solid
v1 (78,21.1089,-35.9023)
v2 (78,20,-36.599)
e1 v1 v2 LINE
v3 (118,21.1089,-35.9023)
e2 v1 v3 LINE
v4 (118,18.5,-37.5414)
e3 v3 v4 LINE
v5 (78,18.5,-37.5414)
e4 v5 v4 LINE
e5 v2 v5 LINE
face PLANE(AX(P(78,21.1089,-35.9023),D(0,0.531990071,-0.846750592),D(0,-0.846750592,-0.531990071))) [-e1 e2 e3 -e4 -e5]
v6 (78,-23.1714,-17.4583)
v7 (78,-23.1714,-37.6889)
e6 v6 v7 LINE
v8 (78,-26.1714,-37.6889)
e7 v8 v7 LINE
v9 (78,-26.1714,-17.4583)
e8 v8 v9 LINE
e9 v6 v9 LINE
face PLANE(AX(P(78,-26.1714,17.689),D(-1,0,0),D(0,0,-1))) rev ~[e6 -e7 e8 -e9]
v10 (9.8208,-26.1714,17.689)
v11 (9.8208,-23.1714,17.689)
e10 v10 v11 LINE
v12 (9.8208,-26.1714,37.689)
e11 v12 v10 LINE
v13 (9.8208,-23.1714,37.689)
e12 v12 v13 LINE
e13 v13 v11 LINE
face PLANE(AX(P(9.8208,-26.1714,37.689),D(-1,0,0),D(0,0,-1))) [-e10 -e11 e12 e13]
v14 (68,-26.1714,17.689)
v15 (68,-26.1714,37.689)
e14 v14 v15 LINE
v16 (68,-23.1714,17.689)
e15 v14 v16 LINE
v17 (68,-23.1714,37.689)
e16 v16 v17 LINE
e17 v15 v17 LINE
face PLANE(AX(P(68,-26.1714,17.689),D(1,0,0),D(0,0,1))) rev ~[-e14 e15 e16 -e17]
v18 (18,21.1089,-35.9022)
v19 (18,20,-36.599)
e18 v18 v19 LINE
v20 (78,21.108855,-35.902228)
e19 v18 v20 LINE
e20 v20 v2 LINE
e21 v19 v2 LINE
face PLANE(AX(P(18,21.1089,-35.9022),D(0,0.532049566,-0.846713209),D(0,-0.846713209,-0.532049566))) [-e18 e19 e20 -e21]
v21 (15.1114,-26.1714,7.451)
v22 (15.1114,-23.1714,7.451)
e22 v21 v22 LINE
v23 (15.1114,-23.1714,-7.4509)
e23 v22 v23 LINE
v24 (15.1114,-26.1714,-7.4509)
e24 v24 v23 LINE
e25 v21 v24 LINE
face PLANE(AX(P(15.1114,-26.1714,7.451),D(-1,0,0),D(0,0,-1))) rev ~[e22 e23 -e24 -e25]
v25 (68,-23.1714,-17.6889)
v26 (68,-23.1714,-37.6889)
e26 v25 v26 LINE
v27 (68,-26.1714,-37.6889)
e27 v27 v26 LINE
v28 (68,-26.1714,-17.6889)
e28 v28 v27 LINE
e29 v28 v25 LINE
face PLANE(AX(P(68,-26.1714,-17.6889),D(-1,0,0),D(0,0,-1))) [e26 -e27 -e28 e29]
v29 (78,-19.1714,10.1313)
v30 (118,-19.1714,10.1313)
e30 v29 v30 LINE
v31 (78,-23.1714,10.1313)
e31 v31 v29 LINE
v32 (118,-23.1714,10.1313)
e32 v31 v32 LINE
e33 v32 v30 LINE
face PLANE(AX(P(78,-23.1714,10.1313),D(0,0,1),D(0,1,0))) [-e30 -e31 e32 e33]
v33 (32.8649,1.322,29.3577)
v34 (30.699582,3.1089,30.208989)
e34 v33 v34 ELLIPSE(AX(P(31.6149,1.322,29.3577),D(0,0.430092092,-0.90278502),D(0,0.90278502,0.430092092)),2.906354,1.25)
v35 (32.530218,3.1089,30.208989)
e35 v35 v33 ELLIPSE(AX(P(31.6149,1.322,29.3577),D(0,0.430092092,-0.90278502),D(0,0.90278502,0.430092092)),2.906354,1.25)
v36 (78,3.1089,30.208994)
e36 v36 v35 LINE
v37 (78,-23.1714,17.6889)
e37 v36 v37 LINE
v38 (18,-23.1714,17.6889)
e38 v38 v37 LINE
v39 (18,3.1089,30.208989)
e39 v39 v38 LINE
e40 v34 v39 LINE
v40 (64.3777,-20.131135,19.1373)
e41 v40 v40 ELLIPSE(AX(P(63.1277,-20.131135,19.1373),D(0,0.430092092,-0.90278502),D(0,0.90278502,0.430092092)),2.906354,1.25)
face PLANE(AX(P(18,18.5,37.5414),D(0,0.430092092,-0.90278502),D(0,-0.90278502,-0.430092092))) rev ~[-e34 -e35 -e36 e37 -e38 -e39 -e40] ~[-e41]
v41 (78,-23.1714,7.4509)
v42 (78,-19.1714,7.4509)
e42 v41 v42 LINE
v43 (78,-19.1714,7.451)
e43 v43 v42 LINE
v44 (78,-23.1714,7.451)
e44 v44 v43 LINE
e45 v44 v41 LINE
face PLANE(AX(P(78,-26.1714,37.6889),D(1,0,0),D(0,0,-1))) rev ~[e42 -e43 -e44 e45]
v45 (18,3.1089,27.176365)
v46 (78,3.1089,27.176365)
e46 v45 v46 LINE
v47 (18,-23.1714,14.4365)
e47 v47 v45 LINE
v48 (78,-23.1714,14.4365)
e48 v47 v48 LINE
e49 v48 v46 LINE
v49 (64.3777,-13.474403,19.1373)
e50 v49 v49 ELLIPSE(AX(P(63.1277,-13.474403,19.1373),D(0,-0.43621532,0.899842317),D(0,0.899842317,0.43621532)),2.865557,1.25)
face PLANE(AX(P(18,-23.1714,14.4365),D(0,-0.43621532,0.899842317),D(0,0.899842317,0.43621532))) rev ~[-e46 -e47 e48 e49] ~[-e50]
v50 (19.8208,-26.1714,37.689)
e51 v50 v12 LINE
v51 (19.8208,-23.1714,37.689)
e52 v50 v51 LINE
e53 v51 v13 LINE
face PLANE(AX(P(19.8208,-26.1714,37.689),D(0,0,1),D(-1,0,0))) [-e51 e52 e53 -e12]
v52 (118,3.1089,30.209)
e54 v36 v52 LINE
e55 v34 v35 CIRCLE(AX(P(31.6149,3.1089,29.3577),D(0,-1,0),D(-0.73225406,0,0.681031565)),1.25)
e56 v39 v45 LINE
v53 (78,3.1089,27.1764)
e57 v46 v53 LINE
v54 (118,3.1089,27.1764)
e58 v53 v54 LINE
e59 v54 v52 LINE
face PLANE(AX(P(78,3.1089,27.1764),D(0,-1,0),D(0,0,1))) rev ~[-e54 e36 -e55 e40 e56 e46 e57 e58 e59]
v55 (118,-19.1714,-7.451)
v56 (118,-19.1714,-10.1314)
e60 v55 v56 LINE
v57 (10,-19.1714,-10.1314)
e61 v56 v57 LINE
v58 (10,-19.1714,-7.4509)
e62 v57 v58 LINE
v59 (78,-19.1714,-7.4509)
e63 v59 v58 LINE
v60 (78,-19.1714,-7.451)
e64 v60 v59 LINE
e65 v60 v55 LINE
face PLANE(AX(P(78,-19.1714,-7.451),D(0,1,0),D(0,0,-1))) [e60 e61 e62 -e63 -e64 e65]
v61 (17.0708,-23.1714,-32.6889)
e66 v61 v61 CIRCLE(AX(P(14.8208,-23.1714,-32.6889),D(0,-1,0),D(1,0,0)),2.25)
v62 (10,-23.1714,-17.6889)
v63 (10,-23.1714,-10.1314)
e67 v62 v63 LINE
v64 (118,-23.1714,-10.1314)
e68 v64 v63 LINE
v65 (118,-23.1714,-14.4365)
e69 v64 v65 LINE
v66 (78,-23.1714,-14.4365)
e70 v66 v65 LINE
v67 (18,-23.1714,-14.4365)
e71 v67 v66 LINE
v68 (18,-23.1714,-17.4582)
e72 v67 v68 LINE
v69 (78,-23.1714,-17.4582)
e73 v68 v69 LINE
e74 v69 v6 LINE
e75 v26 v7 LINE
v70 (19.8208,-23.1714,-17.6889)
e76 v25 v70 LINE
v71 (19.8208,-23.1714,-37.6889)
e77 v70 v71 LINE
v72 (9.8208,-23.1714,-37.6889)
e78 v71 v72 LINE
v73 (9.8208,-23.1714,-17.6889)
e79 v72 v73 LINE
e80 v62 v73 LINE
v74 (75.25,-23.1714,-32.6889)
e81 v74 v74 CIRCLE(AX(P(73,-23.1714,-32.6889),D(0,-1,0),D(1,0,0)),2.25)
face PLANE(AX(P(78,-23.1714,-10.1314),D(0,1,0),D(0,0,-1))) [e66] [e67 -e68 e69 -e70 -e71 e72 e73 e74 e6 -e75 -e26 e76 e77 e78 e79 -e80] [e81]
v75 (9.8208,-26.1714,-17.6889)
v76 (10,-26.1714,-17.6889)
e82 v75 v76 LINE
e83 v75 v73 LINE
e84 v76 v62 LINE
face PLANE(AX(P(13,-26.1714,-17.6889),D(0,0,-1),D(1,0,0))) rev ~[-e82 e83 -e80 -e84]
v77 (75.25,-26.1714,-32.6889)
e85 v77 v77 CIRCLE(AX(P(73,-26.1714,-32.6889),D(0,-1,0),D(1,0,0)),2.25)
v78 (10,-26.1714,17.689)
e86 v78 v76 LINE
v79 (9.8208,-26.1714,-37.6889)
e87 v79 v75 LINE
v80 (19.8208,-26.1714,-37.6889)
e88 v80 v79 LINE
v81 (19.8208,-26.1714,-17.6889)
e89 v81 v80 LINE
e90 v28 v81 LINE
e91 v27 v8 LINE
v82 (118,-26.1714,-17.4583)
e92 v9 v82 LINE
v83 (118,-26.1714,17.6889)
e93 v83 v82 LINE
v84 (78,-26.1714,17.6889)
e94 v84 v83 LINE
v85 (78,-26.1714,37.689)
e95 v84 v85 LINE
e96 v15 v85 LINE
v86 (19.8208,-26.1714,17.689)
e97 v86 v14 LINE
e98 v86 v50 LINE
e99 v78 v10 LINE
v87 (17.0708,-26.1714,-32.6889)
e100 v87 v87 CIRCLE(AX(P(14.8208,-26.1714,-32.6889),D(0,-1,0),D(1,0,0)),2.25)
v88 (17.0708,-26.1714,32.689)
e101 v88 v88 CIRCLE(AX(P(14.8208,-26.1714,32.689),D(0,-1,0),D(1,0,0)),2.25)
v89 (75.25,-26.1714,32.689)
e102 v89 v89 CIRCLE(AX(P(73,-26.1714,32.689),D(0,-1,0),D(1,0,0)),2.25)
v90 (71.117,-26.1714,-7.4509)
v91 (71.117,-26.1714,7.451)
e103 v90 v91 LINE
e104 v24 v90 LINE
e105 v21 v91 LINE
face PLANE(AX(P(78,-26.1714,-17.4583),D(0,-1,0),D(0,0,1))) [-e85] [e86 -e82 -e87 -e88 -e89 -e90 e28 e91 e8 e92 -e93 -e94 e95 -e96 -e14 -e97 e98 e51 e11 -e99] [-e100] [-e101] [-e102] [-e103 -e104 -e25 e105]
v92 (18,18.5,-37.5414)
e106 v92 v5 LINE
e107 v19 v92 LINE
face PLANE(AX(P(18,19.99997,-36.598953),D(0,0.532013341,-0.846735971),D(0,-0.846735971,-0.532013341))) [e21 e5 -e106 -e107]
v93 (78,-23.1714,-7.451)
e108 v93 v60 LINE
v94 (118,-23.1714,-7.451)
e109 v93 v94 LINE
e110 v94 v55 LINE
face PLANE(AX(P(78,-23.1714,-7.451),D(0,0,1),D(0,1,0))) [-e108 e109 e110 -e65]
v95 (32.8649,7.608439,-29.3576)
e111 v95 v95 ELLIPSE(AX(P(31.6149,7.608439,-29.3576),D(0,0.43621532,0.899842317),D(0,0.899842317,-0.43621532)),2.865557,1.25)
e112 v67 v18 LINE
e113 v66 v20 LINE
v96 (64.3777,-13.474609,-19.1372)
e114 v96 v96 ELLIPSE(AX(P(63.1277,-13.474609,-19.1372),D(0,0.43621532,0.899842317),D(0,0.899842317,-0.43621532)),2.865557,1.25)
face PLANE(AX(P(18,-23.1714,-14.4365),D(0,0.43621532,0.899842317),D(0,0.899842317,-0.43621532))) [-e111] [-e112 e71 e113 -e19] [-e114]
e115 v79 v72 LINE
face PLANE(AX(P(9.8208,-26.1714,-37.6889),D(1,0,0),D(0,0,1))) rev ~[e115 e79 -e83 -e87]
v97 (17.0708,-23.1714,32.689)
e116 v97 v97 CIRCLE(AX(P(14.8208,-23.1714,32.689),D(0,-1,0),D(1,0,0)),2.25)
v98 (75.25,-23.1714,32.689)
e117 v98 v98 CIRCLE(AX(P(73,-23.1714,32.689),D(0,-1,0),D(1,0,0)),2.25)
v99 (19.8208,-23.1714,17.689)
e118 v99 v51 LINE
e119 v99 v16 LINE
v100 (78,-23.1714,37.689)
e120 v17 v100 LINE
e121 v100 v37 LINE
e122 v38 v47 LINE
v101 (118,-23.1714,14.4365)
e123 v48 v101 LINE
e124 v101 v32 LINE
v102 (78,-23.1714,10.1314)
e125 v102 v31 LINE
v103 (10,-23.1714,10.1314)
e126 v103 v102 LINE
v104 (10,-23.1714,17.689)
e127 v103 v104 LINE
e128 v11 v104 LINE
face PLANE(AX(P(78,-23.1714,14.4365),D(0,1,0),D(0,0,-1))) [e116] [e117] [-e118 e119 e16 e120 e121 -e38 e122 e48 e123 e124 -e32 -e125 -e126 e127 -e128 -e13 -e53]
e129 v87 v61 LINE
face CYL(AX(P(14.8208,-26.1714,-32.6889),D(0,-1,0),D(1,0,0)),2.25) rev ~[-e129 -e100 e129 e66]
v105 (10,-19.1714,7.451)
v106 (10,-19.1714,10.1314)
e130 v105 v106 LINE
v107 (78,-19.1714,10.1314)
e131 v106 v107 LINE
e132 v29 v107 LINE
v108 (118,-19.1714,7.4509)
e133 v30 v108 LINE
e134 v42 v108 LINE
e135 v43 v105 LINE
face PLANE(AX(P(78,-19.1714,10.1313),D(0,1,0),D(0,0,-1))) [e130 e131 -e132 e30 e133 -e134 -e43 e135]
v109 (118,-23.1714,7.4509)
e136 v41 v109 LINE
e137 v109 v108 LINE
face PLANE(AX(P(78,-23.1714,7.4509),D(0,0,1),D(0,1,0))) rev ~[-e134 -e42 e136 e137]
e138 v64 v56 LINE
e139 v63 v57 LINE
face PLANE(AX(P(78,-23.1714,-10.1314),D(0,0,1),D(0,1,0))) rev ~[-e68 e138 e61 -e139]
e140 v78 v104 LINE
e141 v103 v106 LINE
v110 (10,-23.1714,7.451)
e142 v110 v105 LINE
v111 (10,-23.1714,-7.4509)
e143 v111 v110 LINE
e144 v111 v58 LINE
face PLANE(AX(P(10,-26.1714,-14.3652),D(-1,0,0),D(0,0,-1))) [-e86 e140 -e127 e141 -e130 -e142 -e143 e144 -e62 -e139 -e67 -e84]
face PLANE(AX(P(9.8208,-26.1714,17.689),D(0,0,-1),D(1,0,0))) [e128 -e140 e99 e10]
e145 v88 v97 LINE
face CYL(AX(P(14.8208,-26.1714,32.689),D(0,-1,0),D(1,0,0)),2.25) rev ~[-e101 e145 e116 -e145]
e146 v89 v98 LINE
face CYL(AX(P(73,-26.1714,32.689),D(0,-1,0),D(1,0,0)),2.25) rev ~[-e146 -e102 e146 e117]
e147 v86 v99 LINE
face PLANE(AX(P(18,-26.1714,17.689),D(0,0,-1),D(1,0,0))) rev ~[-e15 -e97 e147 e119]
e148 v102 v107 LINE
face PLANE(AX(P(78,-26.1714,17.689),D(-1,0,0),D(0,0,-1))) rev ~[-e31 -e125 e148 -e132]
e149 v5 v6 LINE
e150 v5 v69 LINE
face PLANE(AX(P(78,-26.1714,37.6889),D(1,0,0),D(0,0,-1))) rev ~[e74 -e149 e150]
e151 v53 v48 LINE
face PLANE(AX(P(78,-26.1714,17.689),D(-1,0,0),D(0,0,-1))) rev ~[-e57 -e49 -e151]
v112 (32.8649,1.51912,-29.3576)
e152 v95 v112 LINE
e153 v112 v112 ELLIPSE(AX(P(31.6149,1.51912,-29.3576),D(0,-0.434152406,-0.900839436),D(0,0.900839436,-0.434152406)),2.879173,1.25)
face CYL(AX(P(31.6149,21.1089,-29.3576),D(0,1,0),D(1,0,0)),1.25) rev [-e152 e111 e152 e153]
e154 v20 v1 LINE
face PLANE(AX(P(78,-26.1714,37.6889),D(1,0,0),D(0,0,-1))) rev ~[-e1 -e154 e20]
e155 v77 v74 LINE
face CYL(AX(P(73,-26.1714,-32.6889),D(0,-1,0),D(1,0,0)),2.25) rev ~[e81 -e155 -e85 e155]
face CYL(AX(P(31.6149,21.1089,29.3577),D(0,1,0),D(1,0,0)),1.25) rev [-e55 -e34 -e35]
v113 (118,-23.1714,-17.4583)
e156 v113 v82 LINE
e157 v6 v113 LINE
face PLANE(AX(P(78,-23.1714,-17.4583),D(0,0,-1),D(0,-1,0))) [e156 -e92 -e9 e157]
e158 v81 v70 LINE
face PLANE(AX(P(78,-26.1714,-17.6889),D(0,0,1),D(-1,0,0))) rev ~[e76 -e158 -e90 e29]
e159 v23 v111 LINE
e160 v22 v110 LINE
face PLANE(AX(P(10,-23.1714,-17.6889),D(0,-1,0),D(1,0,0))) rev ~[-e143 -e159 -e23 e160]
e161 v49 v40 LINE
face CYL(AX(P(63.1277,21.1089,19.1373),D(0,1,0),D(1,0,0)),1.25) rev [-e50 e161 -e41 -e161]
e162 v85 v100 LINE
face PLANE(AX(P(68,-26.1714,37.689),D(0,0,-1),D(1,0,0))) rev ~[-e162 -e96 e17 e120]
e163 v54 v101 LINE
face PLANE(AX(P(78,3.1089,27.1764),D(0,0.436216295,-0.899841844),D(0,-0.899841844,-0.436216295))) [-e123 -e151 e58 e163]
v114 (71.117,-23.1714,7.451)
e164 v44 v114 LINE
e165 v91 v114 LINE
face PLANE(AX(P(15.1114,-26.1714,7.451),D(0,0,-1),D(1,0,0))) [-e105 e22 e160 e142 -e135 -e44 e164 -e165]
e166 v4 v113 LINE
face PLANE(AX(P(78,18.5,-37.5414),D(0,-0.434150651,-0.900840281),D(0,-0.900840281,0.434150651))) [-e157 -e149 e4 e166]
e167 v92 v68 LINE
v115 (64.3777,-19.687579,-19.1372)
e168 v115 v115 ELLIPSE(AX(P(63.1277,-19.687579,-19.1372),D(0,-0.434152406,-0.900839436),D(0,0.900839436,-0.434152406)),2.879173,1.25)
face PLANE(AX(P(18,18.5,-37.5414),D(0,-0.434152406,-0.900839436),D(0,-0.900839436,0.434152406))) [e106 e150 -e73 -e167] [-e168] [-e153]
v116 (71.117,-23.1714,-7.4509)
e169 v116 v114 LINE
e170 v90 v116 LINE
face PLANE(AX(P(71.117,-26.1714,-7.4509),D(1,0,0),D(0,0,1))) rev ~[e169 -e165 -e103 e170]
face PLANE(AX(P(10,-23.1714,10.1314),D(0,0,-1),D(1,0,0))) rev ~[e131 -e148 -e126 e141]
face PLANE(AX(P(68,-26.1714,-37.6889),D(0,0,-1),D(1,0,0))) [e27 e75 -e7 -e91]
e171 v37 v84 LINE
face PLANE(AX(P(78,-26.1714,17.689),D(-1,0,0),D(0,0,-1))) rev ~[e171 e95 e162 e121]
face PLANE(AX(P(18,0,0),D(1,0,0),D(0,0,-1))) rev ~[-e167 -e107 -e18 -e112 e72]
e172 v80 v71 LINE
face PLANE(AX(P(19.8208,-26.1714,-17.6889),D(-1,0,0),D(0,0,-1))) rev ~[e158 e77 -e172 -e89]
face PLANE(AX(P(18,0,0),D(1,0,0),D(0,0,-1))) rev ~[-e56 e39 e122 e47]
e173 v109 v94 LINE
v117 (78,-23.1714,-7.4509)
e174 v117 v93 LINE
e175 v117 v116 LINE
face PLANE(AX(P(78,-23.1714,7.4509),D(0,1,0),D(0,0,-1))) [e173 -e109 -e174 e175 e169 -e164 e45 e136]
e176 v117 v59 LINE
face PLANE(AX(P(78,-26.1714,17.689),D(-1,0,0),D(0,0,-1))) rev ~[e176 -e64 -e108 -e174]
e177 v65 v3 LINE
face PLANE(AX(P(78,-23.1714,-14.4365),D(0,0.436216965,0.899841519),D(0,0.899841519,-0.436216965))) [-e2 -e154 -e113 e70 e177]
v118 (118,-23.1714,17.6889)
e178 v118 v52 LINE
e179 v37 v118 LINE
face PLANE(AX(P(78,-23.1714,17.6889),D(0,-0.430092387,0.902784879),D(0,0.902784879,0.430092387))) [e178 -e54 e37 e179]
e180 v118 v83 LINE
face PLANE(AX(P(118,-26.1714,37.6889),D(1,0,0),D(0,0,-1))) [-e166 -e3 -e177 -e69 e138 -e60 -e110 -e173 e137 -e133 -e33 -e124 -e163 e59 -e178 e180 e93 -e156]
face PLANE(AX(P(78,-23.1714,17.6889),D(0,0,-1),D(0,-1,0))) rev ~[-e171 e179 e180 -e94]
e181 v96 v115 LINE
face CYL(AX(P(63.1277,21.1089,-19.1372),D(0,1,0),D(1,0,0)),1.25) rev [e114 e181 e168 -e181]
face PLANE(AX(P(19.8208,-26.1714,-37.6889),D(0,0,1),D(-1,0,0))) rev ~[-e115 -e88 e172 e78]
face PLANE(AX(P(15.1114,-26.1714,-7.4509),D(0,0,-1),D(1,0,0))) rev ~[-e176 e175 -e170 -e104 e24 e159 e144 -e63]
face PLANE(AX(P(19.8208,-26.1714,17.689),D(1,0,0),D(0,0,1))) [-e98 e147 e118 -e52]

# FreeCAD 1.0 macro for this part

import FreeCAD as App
import Part
import Sketcher
from FreeCAD import Vector
Q = App.Units.Quantity

doc = App.newDocument("Part")
params = doc.addObject("Spreadsheet::Sheet", "Params")
for row, (alias, value) in enumerate([
    ("sketch1_width", "68 mm"),
    ("pad1_length", "3 mm"),
    ("sketch2_diameter", "4.5 mm"),
    ("sketch2_width", "10 mm"),
    ("sketch2_height", "20 mm"),
    ("pad2_length", "3 mm"),
    ("sketch3_width", "68 mm"),
    ("pad3_length", "4 mm"),
    ("pocket1_length", "4 mm"),
    ("pad4_length", "60 mm"),
    ("sketch6_diameter", "2.5 mm"),
    ("pocket2_length", "44.2803 mm"),
    ("pocket3_length", "18 mm"),
    ("sketch8_width", "3 mm"),
    ("sketch8_width2", "4 mm"),
    ("pad5_length", "40 mm"),
], start=1):
    params.set(f"A{row}", alias)
    params.set(f"B{row}", "=" + value)
    params.setAlias(f"B{row}", alias)

body = doc.addObject("PartDesign::Body", "Body")

sketch1 = doc.addObject("Sketcher::SketchObject", "Sketch")
body.addObject(sketch1)
sketch1.AttachmentSupport = (doc.XZ_Plane, [""])
sketch1.MapMode = "FlatFace"
sketch1.AttachmentOffset = App.Placement(Vector(0, 0, 26.1714), App.Rotation())
sketch1.addGeometry([
    Part.LineSegment(Vector(78, 18, 0), Vector(10, 18, 0)),
    Part.LineSegment(Vector(10, 18, 0), Vector(10, -18, 0)),
    Part.LineSegment(Vector(10, -18, 0), Vector(78, -18, 0)),
    Part.LineSegment(Vector(78, -18, 0), Vector(78, 18, 0)),
], False)
sketch1.addConstraint([
    Sketcher.Constraint("Coincident", 0, 2, 1, 1),
    Sketcher.Constraint("Coincident", 1, 2, 2, 1),
    Sketcher.Constraint("Coincident", 2, 2, 3, 1),
    Sketcher.Constraint("Coincident", 3, 2, 0, 1),
    Sketcher.Constraint("Horizontal", 0),
    Sketcher.Constraint("Vertical", 1),
    Sketcher.Constraint("Horizontal", 2),
    Sketcher.Constraint("Vertical", 3),
    Sketcher.Constraint("DistanceX", 0, 2, 0, 1, 68.0),
    Sketcher.Constraint("DistanceX", -1, 1, 0, 2, 10.0),
    Sketcher.Constraint("DistanceY", 1, 2, 1, 1, 35.378),
    Sketcher.Constraint("DistanceY", -1, 1, 0, 2, 17.689),
])
sketch1.setExpression("Constraints[8]", "Params.sketch1_width")
pad1 = doc.addObject("PartDesign::Pad", "Pad")
body.addObject(pad1)
pad1.Profile = sketch1
pad1.setExpression("Length", "Params.pad1_length")
pad1.Reversed = True

sketch2 = doc.addObject("Sketcher::SketchObject", "Sketch001")
body.addObject(sketch2)
sketch2.AttachmentSupport = (doc.XZ_Plane, [""])
sketch2.MapMode = "FlatFace"
sketch2.AttachmentOffset = App.Placement(Vector(0, 0, 26.1714), App.Rotation())
sketch2.addGeometry([
    Part.LineSegment(Vector(9.8, 17.7, 0), Vector(19.8, 17.7, 0)),
    Part.LineSegment(Vector(19.8, 17.7, 0), Vector(19.8, 37.7, 0)),
    Part.LineSegment(Vector(19.8, 37.7, 0), Vector(9.8, 37.7, 0)),
    Part.LineSegment(Vector(9.8, 37.7, 0), Vector(9.8, 17.7, 0)),
    Part.Circle(Vector(14.8, 32.7, 0), Vector(0, 0, 1), 2.2),
    Part.LineSegment(Vector(68, 17.7, 0), Vector(78, 17.7, 0)),
    Part.LineSegment(Vector(78, 17.7, 0), Vector(78, 37.7, 0)),
    Part.LineSegment(Vector(78, 37.7, 0), Vector(68, 37.7, 0)),
    Part.LineSegment(Vector(68, 37.7, 0), Vector(68, 17.7, 0)),
    Part.Circle(Vector(73, 32.7, 0), Vector(0, 0, 1), 2.2),
    Part.LineSegment(Vector(78, -17.7, 0), Vector(68, -17.7, 0)),
    Part.LineSegment(Vector(68, -17.7, 0), Vector(68, -37.7, 0)),
    Part.LineSegment(Vector(68, -37.7, 0), Vector(78, -37.7, 0)),
    Part.LineSegment(Vector(78, -37.7, 0), Vector(78, -17.7, 0)),
    Part.Circle(Vector(73, -32.7, 0), Vector(0, 0, 1), 2.2),
    Part.LineSegment(Vector(19.8, -17.7, 0), Vector(9.8, -17.7, 0)),
    Part.LineSegment(Vector(9.8, -17.7, 0), Vector(9.8, -37.7, 0)),
    Part.LineSegment(Vector(9.8, -37.7, 0), Vector(19.8, -37.7, 0)),
    Part.LineSegment(Vector(19.8, -37.7, 0), Vector(19.8, -17.7, 0)),
    Part.Circle(Vector(14.8, -32.7, 0), Vector(0, 0, 1), 2.2),
], False)
sketch2.addConstraint([
    Sketcher.Constraint("Coincident", 0, 2, 1, 1),
    Sketcher.Constraint("Coincident", 1, 2, 2, 1),
    Sketcher.Constraint("Coincident", 2, 2, 3, 1),
    Sketcher.Constraint("Coincident", 3, 2, 0, 1),
    Sketcher.Constraint("Coincident", 5, 2, 6, 1),
    Sketcher.Constraint("Coincident", 6, 2, 7, 1),
    Sketcher.Constraint("Coincident", 7, 2, 8, 1),
    Sketcher.Constraint("Coincident", 8, 2, 5, 1),
    Sketcher.Constraint("Coincident", 10, 2, 11, 1),
    Sketcher.Constraint("Coincident", 11, 2, 12, 1),
    Sketcher.Constraint("Coincident", 12, 2, 13, 1),
    Sketcher.Constraint("Coincident", 13, 2, 10, 1),
    Sketcher.Constraint("Coincident", 15, 2, 16, 1),
    Sketcher.Constraint("Coincident", 16, 2, 17, 1),
    Sketcher.Constraint("Coincident", 17, 2, 18, 1),
    Sketcher.Constraint("Coincident", 18, 2, 15, 1),
    Sketcher.Constraint("Horizontal", 0),
    Sketcher.Constraint("Vertical", 1),
    Sketcher.Constraint("Horizontal", 2),
    Sketcher.Constraint("Vertical", 3),
    Sketcher.Constraint("Horizontal", 5),
    Sketcher.Constraint("Vertical", 6),
    Sketcher.Constraint("Horizontal", 7),
    Sketcher.Constraint("Vertical", 8),
    Sketcher.Constraint("Horizontal", 10),
    Sketcher.Constraint("Vertical", 11),
    Sketcher.Constraint("Horizontal", 12),
    Sketcher.Constraint("Vertical", 13),
    Sketcher.Constraint("Horizontal", 15),
    Sketcher.Constraint("Vertical", 16),
    Sketcher.Constraint("Horizontal", 17),
    Sketcher.Constraint("Vertical", 18),
    Sketcher.Constraint("Equal", 4, 9),
    Sketcher.Constraint("Equal", 9, 14),
    Sketcher.Constraint("Equal", 14, 19),
    Sketcher.Constraint("Symmetric", 9, 3, 14, 3, -1),
    Sketcher.Constraint("Symmetric", 4, 3, 19, 3, -1),
    Sketcher.Constraint("Symmetric", 8, 2, 10, 2, -1),
    Sketcher.Constraint("Symmetric", 6, 2, 12, 2, -1),
    Sketcher.Constraint("Symmetric", 3, 2, 15, 2, -1),
    Sketcher.Constraint("Symmetric", 1, 2, 17, 2, -1),
    Sketcher.Constraint("Horizontal", 4, 3, 9, 3),
    Sketcher.Constraint("Horizontal", 3, 2, 5, 2),
    Sketcher.Constraint("Horizontal", 2, 2, 6, 2),
    Sketcher.Constraint("Equal", 2, 5),
    Sketcher.Constraint("Diameter", 4, 4.5),
    Sketcher.Constraint("DistanceX", 0, 1, 0, 2, 10.0),
    Sketcher.Constraint("DistanceY", 1, 1, 1, 2, 20.0),
    Sketcher.Constraint("DistanceX", 4, 3, 0, 2, 5.0),
    Sketcher.Constraint("DistanceY", 4, 3, 1, 2, 5.0),
    Sketcher.Constraint("DistanceX", 9, 3, 5, 2, 5.0),
    Sketcher.Constraint("DistanceX", -1, 1, 9, 3, 73.0),
    Sketcher.Constraint("DistanceY", -1, 1, 4, 3, 32.689),
    Sketcher.Constraint("DistanceX", -1, 1, 4, 3, 14.8208),
])
sketch2.setExpression("Constraints[45]", "Params.sketch2_diameter")
sketch2.setExpression("Constraints[46]", "Params.sketch2_width")
sketch2.setExpression("Constraints[47]", "Params.sketch2_height")
pad2 = doc.addObject("PartDesign::Pad", "Pad001")
body.addObject(pad2)
pad2.Profile = sketch2
pad2.setExpression("Length", "Params.pad2_length")
pad2.Reversed = True

sketch3 = doc.addObject("Sketcher::SketchObject", "Sketch002")
body.addObject(sketch3)
sketch3.AttachmentSupport = (doc.XZ_Plane, [""])
sketch3.MapMode = "FlatFace"
sketch3.AttachmentOffset = App.Placement(Vector(0, 0, 23.1714), App.Rotation())
sketch3.addGeometry([
    Part.LineSegment(Vector(78, -7.5, 0), Vector(78, -10.1, 0)),
    Part.LineSegment(Vector(78, -10.1, 0), Vector(10, -10.1, 0)),
    Part.LineSegment(Vector(10, -10.1, 0), Vector(10, -7.5, 0)),
    Part.LineSegment(Vector(10, -7.5, 0), Vector(78, -7.5, 0)),
    Part.LineSegment(Vector(78, 10.1, 0), Vector(78, 7.5, 0)),
    Part.LineSegment(Vector(78, 7.5, 0), Vector(10, 7.5, 0)),
    Part.LineSegment(Vector(10, 7.5, 0), Vector(10, 10.1, 0)),
    Part.LineSegment(Vector(10, 10.1, 0), Vector(78, 10.1, 0)),
], False)
sketch3.addConstraint([
    Sketcher.Constraint("Coincident", 0, 2, 1, 1),
    Sketcher.Constraint("Coincident", 1, 2, 2, 1),
    Sketcher.Constraint("Coincident", 2, 2, 3, 1),
    Sketcher.Constraint("Coincident", 3, 2, 0, 1),
    Sketcher.Constraint("Coincident", 4, 2, 5, 1),
    Sketcher.Constraint("Coincident", 5, 2, 6, 1),
    Sketcher.Constraint("Coincident", 6, 2, 7, 1),
    Sketcher.Constraint("Coincident", 7, 2, 4, 1),
    Sketcher.Constraint("Vertical", 0),
    Sketcher.Constraint("Horizontal", 1),
    Sketcher.Constraint("Vertical", 2),
    Sketcher.Constraint("Horizontal", 3),
    Sketcher.Constraint("Vertical", 4),
    Sketcher.Constraint("Horizontal", 5),
    Sketcher.Constraint("Vertical", 6),
    Sketcher.Constraint("Horizontal", 7),
    Sketcher.Constraint("Symmetric", 3, 2, 4, 2, -1),
    Sketcher.Constraint("Symmetric", 1, 2, 6, 2, -1),
    Sketcher.Constraint("DistanceX", 1, 2, 1, 1, 68.0),
    Sketcher.Constraint("DistanceX", -1, 1, 0, 2, 78.0),
    Sketcher.Constraint("DistanceY", 0, 2, 0, 1, 2.6805),
    Sketcher.Constraint("DistanceY", 2, 2, -1, 1, 7.451),
])
sketch3.setExpression("Constraints[18]", "Params.sketch3_width")
pad3 = doc.addObject("PartDesign::Pad", "Pad002")
body.addObject(pad3)
pad3.Profile = sketch3
pad3.setExpression("Length", "Params.pad3_length")
pad3.Reversed = True

sketch4 = doc.addObject("Sketcher::SketchObject", "Sketch003")
body.addObject(sketch4)
sketch4.AttachmentSupport = (doc.XZ_Plane, [""])
sketch4.MapMode = "FlatFace"
sketch4.AttachmentOffset = App.Placement(Vector(0, 0, 26.1714), App.Rotation())
sketch4.addGeometry([
    Part.LineSegment(Vector(71, 7, 0), Vector(15, 7, 0)),
    Part.LineSegment(Vector(15, 7, 0), Vector(15, -7, 0)),
    Part.LineSegment(Vector(15, -7, 0), Vector(71, -7, 0)),
    Part.LineSegment(Vector(71, -7, 0), Vector(71, 7, 0)),
], False)
sketch4.addConstraint([
    Sketcher.Constraint("Coincident", 0, 2, 1, 1),
    Sketcher.Constraint("Coincident", 1, 2, 2, 1),
    Sketcher.Constraint("Coincident", 2, 2, 3, 1),
    Sketcher.Constraint("Coincident", 3, 2, 0, 1),
    Sketcher.Constraint("Horizontal", 0),
    Sketcher.Constraint("Vertical", 1),
    Sketcher.Constraint("Horizontal", 2),
    Sketcher.Constraint("Vertical", 3),
    Sketcher.Constraint("DistanceY", 1, 2, 1, 1, 14.902),
    Sketcher.Constraint("DistanceX", 0, 2, 0, 1, 56.0056),
    Sketcher.Constraint("DistanceY", -1, 1, 0, 2, 7.451),
    Sketcher.Constraint("DistanceX", -1, 1, 2, 2, 71.117),
])
pocket1 = doc.addObject("PartDesign::Pocket", "Pocket")
body.addObject(pocket1)
pocket1.Profile = sketch4
pocket1.setExpression("Length", "Params.pocket1_length")

sketch5 = doc.addObject("Sketcher::SketchObject", "Sketch004")
body.addObject(sketch5)
sketch5.AttachmentSupport = (doc.YZ_Plane, [""])
sketch5.MapMode = "FlatFace"
sketch5.AttachmentOffset = App.Placement(Vector(0, 0, 18), App.Rotation())
sketch5.addGeometry([
    Part.LineSegment(Vector(21.1, -35.9, 0), Vector(-23.2, -14.4, 0)),
    Part.LineSegment(Vector(-23.2, -14.4, 0), Vector(-23.2, -17.5, 0)),
    Part.LineSegment(Vector(-23.2, -17.5, 0), Vector(18.5, -37.5, 0)),
    Part.LineSegment(Vector(18.5, -37.5, 0), Vector(20, -36.6, 0)),
    Part.LineSegment(Vector(20, -36.6, 0), Vector(21.1, -35.9, 0)),
    Part.LineSegment(Vector(18.5, 37.5, 0), Vector(-23.2, 17.7, 0)),
    Part.LineSegment(Vector(-23.2, 17.7, 0), Vector(-23.2, 14.4, 0)),
    Part.LineSegment(Vector(-23.2, 14.4, 0), Vector(21.1, 35.9, 0)),
    Part.LineSegment(Vector(21.1, 35.9, 0), Vector(20, 36.6, 0)),
    Part.LineSegment(Vector(20, 36.6, 0), Vector(18.5, 37.5, 0)),
], False)
sketch5.addConstraint([
    Sketcher.Constraint("Coincident", 0, 2, 1, 1),
    Sketcher.Constraint("Coincident", 1, 2, 2, 1),
    Sketcher.Constraint("Coincident", 2, 2, 3, 1),
    Sketcher.Constraint("Coincident", 3, 2, 4, 1),
    Sketcher.Constraint("Coincident", 4, 2, 0, 1),
    Sketcher.Constraint("Coincident", 5, 2, 6, 1),
    Sketcher.Constraint("Coincident", 6, 2, 7, 1),
    Sketcher.Constraint("Coincident", 7, 2, 8, 1),
    Sketcher.Constraint("Coincident", 8, 2, 9, 1),
    Sketcher.Constraint("Coincident", 9, 2, 5, 1),
    Sketcher.Constraint("Vertical", 1),
    Sketcher.Constraint("Vertical", 6),
    Sketcher.Constraint("Symmetric", 0, 2, 6, 2, -1),
    Sketcher.Constraint("Symmetric", 4, 2, 7, 2, -1),
    Sketcher.Constraint("Symmetric", 3, 2, 8, 2, -1),
    Sketcher.Constraint("Symmetric", 2, 2, 9, 2, -1),
    Sketcher.Constraint("Parallel", 3, 4),
    Sketcher.Constraint("DistanceX", -1, 1, 3, 2, 20.0),
    Sketcher.Constraint("DistanceX", -1, 1, 2, 2, 18.5),
    Sketcher.Constraint("Angle", 9, Q("147.8602 deg")),
    Sketcher.Constraint("DistanceY", 5, 2, 8, 2, 18.91),
    Sketcher.Constraint("Distance", 0, 49.209),
    Sketcher.Constraint("DistanceY", 1, 2, 1, 1, 3.0217),
    Sketcher.Constraint("DistanceY", 6, 2, 6, 1, 3.2524),
    Sketcher.Constraint("DistanceY", 3, 2, -1, 1, 36.599),
    Sketcher.Constraint("DistanceX", -1, 1, 4, 2, 21.109),
])
pad4 = doc.addObject("PartDesign::Pad", "Pad003")
body.addObject(pad4)
pad4.Profile = sketch5
pad4.setExpression("Length", "Params.pad4_length")

sketch6 = doc.addObject("Sketcher::SketchObject", "Sketch005")
body.addObject(sketch6)
sketch6.AttachmentSupport = (doc.XZ_Plane, [""])
sketch6.MapMode = "FlatFace"
sketch6.AttachmentOffset = App.Placement(Vector(0, 0, -21.1089), App.Rotation())
sketch6.addGeometry([
    Part.Circle(Vector(63.1, -19.1, 0), Vector(0, 0, 1), 1.2),
    Part.Circle(Vector(31.6, -29.4, 0), Vector(0, 0, 1), 1.2),
    Part.Circle(Vector(63.1, 19.1, 0), Vector(0, 0, 1), 1.2),
    Part.Circle(Vector(31.6, 29.4, 0), Vector(0, 0, 1), 1.2),
], False)
sketch6.addConstraint([
    Sketcher.Constraint("Equal", 0, 1),
    Sketcher.Constraint("Equal", 1, 2),
    Sketcher.Constraint("Equal", 2, 3),
    Sketcher.Constraint("Symmetric", 0, 3, 2, 3, -1),
    Sketcher.Constraint("Symmetric", 1, 3, 3, 3, -1),
    Sketcher.Constraint("Diameter", 0, 2.5),
    Sketcher.Constraint("DistanceX", -1, 1, 1, 3, 31.615),
    Sketcher.Constraint("DistanceY", 1, 3, 2, 3, 48.495),
    Sketcher.Constraint("DistanceX", -1, 1, 0, 3, 63.1277),
    Sketcher.Constraint("DistanceY", 0, 3, -1, 1, 19.1372),
])
sketch6.setExpression("Constraints[5]", "Params.sketch6_diameter")
pocket2 = doc.addObject("PartDesign::Pocket", "Pocket001")
body.addObject(pocket2)
pocket2.Profile = sketch6
pocket2.setExpression("Length", "Params.pocket2_length")
pocket2.Reversed = True

sketch7 = doc.addObject("Sketcher::SketchObject", "Sketch006")
body.addObject(sketch7)
sketch7.AttachmentSupport = (doc.XZ_Plane, [""])
sketch7.MapMode = "FlatFace"
sketch7.AttachmentOffset = App.Placement(Vector(0, 0, -21.1089), App.Rotation())
sketch7.addGeometry([
    Part.LineSegment(Vector(79, 44, 0), Vector(13, 44, 0)),
    Part.LineSegment(Vector(13, 44, 0), Vector(13, -21, 0)),
    Part.LineSegment(Vector(13, -21, 0), Vector(79, -21, 0)),
    Part.LineSegment(Vector(79, -21, 0), Vector(79, 44, 0)),
], False)
sketch7.addConstraint([
    Sketcher.Constraint("Coincident", 0, 2, 1, 1),
    Sketcher.Constraint("Coincident", 1, 2, 2, 1),
    Sketcher.Constraint("Coincident", 2, 2, 3, 1),
    Sketcher.Constraint("Coincident", 3, 2, 0, 1),
    Sketcher.Constraint("Horizontal", 0),
    Sketcher.Constraint("Vertical", 1),
    Sketcher.Constraint("Horizontal", 2),
    Sketcher.Constraint("Vertical", 3),
    Sketcher.Constraint("DistanceX", 0, 2, 0, 1, 66.3966),
    Sketcher.Constraint("DistanceY", 1, 2, 1, 1, 64.6164),
    Sketcher.Constraint("DistanceX", -1, 1, 2, 2, 79.307),
    Sketcher.Constraint("DistanceY", -1, 1, 0, 2, 43.5267),
])
pocket3 = doc.addObject("PartDesign::Pocket", "Pocket002")
body.addObject(pocket3)
pocket3.Profile = sketch7
pocket3.setExpression("Length", "Params.pocket3_length")
pocket3.Reversed = True

sketch8 = doc.addObject("Sketcher::SketchObject", "Sketch007")
body.addObject(sketch8)
sketch8.AttachmentSupport = (doc.YZ_Plane, [""])
sketch8.MapMode = "FlatFace"
sketch8.AttachmentOffset = App.Placement(Vector(0, 0, 78), App.Rotation())
sketch8.addGeometry([
    Part.LineSegment(Vector(-23.2, 14.4, 0), Vector(3.1, 27.2, 0)),
    Part.LineSegment(Vector(3.1, 27.2, 0), Vector(3.1, 30.2, 0)),
    Part.LineSegment(Vector(3.1, 30.2, 0), Vector(-23.2, 17.7, 0)),
    Part.LineSegment(Vector(-23.2, 17.7, 0), Vector(-26.2, 17.7, 0)),
    Part.LineSegment(Vector(-26.2, 17.7, 0), Vector(-26.2, -17.5, 0)),
    Part.LineSegment(Vector(-26.2, -17.5, 0), Vector(-23.2, -17.5, 0)),
    Part.LineSegment(Vector(-23.2, -17.5, 0), Vector(18.5, -37.5, 0)),
    Part.LineSegment(Vector(18.5, -37.5, 0), Vector(21.1, -35.9, 0)),
    Part.LineSegment(Vector(21.1, -35.9, 0), Vector(-23.2, -14.4, 0)),
    Part.LineSegment(Vector(-23.2, -14.4, 0), Vector(-23.2, -10.1, 0)),
    Part.LineSegment(Vector(-23.2, -10.1, 0), Vector(-19.2, -10.1, 0)),
    Part.LineSegment(Vector(-19.2, -10.1, 0), Vector(-19.2, -7.5, 0)),
    Part.LineSegment(Vector(-19.2, -7.5, 0), Vector(-23.2, -7.5, 0)),
    Part.LineSegment(Vector(-23.2, -7.5, 0), Vector(-23.2, 7.5, 0)),
    Part.LineSegment(Vector(-23.2, 7.5, 0), Vector(-19.2, 7.5, 0)),
    Part.LineSegment(Vector(-19.2, 7.5, 0), Vector(-19.2, 10.1, 0)),
    Part.LineSegment(Vector(-19.2, 10.1, 0), Vector(-23.2, 10.1, 0)),
    Part.LineSegment(Vector(-23.2, 10.1, 0), Vector(-23.2, 14.4, 0)),
], False)
sketch8.addConstraint([
    Sketcher.Constraint("Coincident", 0, 2, 1, 1),
    Sketcher.Constraint("Coincident", 1, 2, 2, 1),
    Sketcher.Constraint("Coincident", 2, 2, 3, 1),
    Sketcher.Constraint("Coincident", 3, 2, 4, 1),
    Sketcher.Constraint("Coincident", 4, 2, 5, 1),
    Sketcher.Constraint("Coincident", 5, 2, 6, 1),
    Sketcher.Constraint("Coincident", 6, 2, 7, 1),
    Sketcher.Constraint("Coincident", 7, 2, 8, 1),
    Sketcher.Constraint("Coincident", 8, 2, 9, 1),
    Sketcher.Constraint("Coincident", 9, 2, 10, 1),
    Sketcher.Constraint("Coincident", 10, 2, 11, 1),
    Sketcher.Constraint("Coincident", 11, 2, 12, 1),
    Sketcher.Constraint("Coincident", 12, 2, 13, 1),
    Sketcher.Constraint("Coincident", 13, 2, 14, 1),
    Sketcher.Constraint("Coincident", 14, 2, 15, 1),
    Sketcher.Constraint("Coincident", 15, 2, 16, 1),
    Sketcher.Constraint("Coincident", 16, 2, 17, 1),
    Sketcher.Constraint("Coincident", 17, 2, 0, 1),
    Sketcher.Constraint("Vertical", 1),
    Sketcher.Constraint("Horizontal", 3),
    Sketcher.Constraint("Vertical", 4),
    Sketcher.Constraint("Horizontal", 5),
    Sketcher.Constraint("Vertical", 9),
    Sketcher.Constraint("Horizontal", 10),
    Sketcher.Constraint("Vertical", 11),
    Sketcher.Constraint("Horizontal", 12),
    Sketcher.Constraint("Vertical", 13),
    Sketcher.Constraint("Horizontal", 14),
    Sketcher.Constraint("Vertical", 15),
    Sketcher.Constraint("Horizontal", 16),
    Sketcher.Constraint("Vertical", 17),
    Sketcher.Constraint("Symmetric", 11, 2, 14, 2, -1),
    Sketcher.Constraint("Symmetric", 9, 2, 16, 2, -1),
    Sketcher.Constraint("Vertical", 2, 2, 5, 2),
    Sketcher.Constraint("Vertical", 5, 2, 8, 2),
    Sketcher.Constraint("Vertical", 9, 2, 12, 2),
    Sketcher.Constraint("Equal", 9, 17),
    Sketcher.Constraint("DistanceX", 3, 2, 3, 1, 3.0),
    Sketcher.Constraint("DistanceX", 10, 1, 10, 2, 4.0),
    Sketcher.Constraint("DistanceX", 0, 2, 7, 2, 18.0),
    Sketcher.Constraint("DistanceX", -1, 1, 6, 2, 18.5),
    Sketcher.Constraint("Angle", 7, Q("32.14 deg")),
    Sketcher.Constraint("DistanceY", 9, 1, 9, 2, 4.305),
    Sketcher.Constraint("DistanceY", 13, 1, 13, 2, 14.902),
    Sketcher.Constraint("DistanceY", 2, 2, 1, 2, 12.52),
    Sketcher.Constraint("Distance", 7, 3.081),
    Sketcher.Constraint("Distance", 8, 49.209),
    Sketcher.Constraint("DistanceY", 1, 1, 1, 2, 3.0326),
    Sketcher.Constraint("DistanceY", 4, 2, 4, 1, 35.1472),
    Sketcher.Constraint("DistanceY", 11, 1, 11, 2, 2.6804),
    Sketcher.Constraint("DistanceY", -1, 1, 1, 2, 30.209),
    Sketcher.Constraint("DistanceY", 6, 2, 5, 2, 20.083),
])
sketch8.setExpression("Constraints[37]", "Params.sketch8_width")
sketch8.setExpression("Constraints[38]", "Params.sketch8_width2")
pad5 = doc.addObject("PartDesign::Pad", "Pad004")
body.addObject(pad5)
pad5.Profile = sketch8
pad5.setExpression("Length", "Params.pad5_length")

doc.recompute()
